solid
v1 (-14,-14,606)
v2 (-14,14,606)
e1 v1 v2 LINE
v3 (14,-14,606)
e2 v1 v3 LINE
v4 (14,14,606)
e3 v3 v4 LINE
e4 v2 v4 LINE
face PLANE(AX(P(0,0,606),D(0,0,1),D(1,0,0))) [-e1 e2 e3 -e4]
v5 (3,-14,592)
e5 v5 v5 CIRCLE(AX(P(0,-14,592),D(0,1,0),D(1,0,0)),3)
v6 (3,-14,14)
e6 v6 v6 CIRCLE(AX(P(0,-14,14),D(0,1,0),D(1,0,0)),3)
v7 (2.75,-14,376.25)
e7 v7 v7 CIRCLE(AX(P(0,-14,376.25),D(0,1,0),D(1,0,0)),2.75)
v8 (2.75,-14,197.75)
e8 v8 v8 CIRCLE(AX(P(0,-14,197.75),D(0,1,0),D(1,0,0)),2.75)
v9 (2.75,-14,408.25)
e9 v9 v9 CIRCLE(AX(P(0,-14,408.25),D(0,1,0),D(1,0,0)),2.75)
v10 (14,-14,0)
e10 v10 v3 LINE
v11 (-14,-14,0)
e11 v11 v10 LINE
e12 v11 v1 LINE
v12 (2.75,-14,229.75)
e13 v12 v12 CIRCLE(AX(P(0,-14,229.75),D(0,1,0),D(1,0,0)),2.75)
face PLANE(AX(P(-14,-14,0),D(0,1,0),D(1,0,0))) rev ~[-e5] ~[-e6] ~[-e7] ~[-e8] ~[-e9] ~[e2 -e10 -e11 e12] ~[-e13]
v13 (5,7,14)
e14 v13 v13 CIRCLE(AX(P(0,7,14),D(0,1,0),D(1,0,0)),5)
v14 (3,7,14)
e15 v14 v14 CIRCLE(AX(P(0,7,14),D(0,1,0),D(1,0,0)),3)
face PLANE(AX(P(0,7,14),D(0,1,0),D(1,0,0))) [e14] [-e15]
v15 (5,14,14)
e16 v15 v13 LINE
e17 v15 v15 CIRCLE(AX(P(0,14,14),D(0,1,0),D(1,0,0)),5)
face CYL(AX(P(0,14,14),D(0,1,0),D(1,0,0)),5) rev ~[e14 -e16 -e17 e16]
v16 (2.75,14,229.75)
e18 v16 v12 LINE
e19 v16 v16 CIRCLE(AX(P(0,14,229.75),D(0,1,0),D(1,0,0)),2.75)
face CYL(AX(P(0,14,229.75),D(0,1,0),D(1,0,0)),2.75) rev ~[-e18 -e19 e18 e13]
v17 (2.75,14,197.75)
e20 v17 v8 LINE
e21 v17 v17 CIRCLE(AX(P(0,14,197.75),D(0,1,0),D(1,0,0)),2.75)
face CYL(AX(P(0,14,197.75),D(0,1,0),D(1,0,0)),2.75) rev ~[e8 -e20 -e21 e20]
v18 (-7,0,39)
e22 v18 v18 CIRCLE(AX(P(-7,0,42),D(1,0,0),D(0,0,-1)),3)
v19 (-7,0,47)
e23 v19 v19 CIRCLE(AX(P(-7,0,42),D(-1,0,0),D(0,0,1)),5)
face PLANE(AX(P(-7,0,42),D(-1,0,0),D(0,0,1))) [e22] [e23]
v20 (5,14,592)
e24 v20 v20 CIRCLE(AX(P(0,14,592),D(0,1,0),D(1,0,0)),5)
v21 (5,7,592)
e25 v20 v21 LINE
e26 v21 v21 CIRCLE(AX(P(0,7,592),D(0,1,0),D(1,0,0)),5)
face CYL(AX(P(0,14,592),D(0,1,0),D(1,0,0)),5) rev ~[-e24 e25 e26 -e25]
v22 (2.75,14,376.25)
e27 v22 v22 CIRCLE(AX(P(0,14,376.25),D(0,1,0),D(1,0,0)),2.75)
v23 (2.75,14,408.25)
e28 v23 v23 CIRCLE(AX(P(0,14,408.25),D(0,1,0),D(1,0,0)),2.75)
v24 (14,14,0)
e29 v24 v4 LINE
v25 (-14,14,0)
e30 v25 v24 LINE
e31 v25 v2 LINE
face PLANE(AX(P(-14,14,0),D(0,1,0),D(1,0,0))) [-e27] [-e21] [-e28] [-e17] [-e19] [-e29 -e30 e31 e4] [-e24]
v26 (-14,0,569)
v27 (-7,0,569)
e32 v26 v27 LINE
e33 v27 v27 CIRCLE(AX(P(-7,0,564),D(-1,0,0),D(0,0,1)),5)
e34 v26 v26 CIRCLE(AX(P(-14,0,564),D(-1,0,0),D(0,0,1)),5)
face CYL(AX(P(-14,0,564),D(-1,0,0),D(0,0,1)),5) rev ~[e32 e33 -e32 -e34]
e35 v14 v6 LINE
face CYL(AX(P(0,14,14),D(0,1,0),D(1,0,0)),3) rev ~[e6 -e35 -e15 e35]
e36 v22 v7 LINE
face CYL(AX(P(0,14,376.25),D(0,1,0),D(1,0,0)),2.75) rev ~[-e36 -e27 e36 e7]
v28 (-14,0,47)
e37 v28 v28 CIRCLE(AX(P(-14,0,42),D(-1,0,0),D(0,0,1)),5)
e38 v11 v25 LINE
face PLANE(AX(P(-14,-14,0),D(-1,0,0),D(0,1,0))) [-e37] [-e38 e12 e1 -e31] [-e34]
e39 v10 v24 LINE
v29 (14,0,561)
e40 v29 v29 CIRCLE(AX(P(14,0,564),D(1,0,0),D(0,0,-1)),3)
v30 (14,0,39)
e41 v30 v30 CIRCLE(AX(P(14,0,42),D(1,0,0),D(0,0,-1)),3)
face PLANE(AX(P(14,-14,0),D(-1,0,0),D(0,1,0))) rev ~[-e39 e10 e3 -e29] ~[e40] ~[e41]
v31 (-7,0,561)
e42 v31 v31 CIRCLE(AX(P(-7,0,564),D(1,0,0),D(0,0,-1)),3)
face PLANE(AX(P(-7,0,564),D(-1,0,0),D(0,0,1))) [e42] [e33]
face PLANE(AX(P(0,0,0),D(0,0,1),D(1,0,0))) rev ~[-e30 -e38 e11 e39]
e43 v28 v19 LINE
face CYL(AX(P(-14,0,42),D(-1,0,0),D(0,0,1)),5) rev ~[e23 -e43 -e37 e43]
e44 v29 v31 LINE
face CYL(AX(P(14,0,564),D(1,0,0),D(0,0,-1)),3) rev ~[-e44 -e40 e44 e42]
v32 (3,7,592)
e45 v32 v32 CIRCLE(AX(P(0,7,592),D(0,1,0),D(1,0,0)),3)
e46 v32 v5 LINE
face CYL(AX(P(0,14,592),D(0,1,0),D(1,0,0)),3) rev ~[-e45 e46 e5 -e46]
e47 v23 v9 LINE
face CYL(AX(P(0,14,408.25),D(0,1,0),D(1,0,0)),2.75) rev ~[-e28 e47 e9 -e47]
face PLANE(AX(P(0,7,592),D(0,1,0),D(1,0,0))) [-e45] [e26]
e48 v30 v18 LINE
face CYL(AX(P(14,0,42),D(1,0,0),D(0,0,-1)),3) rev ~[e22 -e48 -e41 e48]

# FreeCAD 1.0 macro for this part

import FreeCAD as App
import Part
import Sketcher
from FreeCAD import Vector

doc = App.newDocument("Part")
body = doc.addObject("PartDesign::Body", "Body")

# Sketch on XY plane
sketch1 = body.newObject("Sketcher::SketchObject", "Sketch")
sketch1.AttachmentSupport = (doc.getObject("XY_Plane"), [""])
sketch1.MapMode = "FlatFace"
sketch1.addGeometry([
    Part.LineSegment(Vector(-14, 14, 0), Vector(-14, -14, 0)),
    Part.LineSegment(Vector(-14, -14, 0), Vector(14, -14, 0)),
    Part.LineSegment(Vector(14, -14, 0), Vector(14, 14, 0)),
    Part.LineSegment(Vector(14, 14, 0), Vector(-14, 14, 0)),
], False)
sketch1.addConstraint([
    Sketcher.Constraint("Coincident", 0, 2, 1, 1),
    Sketcher.Constraint("Coincident", 1, 2, 2, 1),
    Sketcher.Constraint("Coincident", 2, 2, 3, 1),
    Sketcher.Constraint("Coincident", 3, 2, 0, 1),
    Sketcher.Constraint("Vertical", 0),
    Sketcher.Constraint("Horizontal", 1),
    Sketcher.Constraint("Vertical", 2),
    Sketcher.Constraint("Horizontal", 3),
    Sketcher.Constraint("Symmetric", 0, 2, 2, 2, -1, 1),
    Sketcher.Constraint("Equal", 3, 0),
    Sketcher.Constraint("DistanceX", 1, 1, 1, 2, 28.0),
])
pad1 = body.newObject("PartDesign::Pad", "Pad")
pad1.Profile = sketch1
pad1.Length = 606

# Sketch on YZ plane
sketch2 = body.newObject("Sketcher::SketchObject", "Sketch001")
sketch2.AttachmentSupport = (doc.getObject("YZ_Plane"), [""])
sketch2.MapMode = "FlatFace"
sketch2.AttachmentOffset = App.Placement(Vector(0, 0, 14), App.Rotation())
sketch2.addGeometry([
    Part.Circle(Vector(0, 42, 0), Vector(0, 0, 1), 3),
    Part.Circle(Vector(0, 564, 0), Vector(0, 0, 1), 3),
], False)
sketch2.addConstraint([
    Sketcher.Constraint("Equal", 0, 1),
    Sketcher.Constraint("PointOnObject", 0, 3, -2),
    Sketcher.Constraint("PointOnObject", 1, 3, -2),
    Sketcher.Constraint("Diameter", 0, 6.0),
    Sketcher.Constraint("DistanceY", -1, 1, 0, 3, 42.0),
    Sketcher.Constraint("DistanceY", -1, 1, 1, 3, 564.0),
])
pocket1 = body.newObject("PartDesign::Pocket", "Pocket")
pocket1.Profile = sketch2
pocket1.Length = 40

# Sketch on YZ plane
sketch3 = body.newObject("Sketcher::SketchObject", "Sketch002")
sketch3.AttachmentSupport = (doc.getObject("YZ_Plane"), [""])
sketch3.MapMode = "FlatFace"
sketch3.AttachmentOffset = App.Placement(Vector(0, 0, -14), App.Rotation())
sketch3.addGeometry([
    Part.Circle(Vector(0, 42, 0), Vector(0, 0, 1), 5),
    Part.Circle(Vector(0, 564, 0), Vector(0, 0, 1), 5),
], False)
sketch3.addConstraint([
    Sketcher.Constraint("Equal", 0, 1),
    Sketcher.Constraint("PointOnObject", 0, 3, -2),
    Sketcher.Constraint("PointOnObject", 1, 3, -2),
    Sketcher.Constraint("Diameter", 0, 10.0),
    Sketcher.Constraint("DistanceY", -1, 1, 0, 3, 42.0),
    Sketcher.Constraint("DistanceY", -1, 1, 1, 3, 564.0),
])
pocket2 = body.newObject("PartDesign::Pocket", "Pocket001")
pocket2.Profile = sketch3
pocket2.Length = 7
pocket2.Reversed = True

# Sketch on XZ plane
sketch4 = body.newObject("Sketcher::SketchObject", "Sketch003")
sketch4.AttachmentSupport = (doc.getObject("XZ_Plane"), [""])
sketch4.MapMode = "FlatFace"
sketch4.AttachmentOffset = App.Placement(Vector(0, 0, -14), App.Rotation())
sketch4.addGeometry([
    Part.Circle(Vector(0, 592, 0), Vector(0, 0, 1), 3),
    Part.Circle(Vector(0, 14, 0), Vector(0, 0, 1), 3),
], False)
sketch4.addConstraint([
    Sketcher.Constraint("Equal", 0, 1),
    Sketcher.Constraint("PointOnObject", 0, 3, -2),
    Sketcher.Constraint("PointOnObject", 1, 3, -2),
    Sketcher.Constraint("Diameter", 0, 6.0),
    Sketcher.Constraint("DistanceY", -1, 1, 0, 3, 592.0),
    Sketcher.Constraint("DistanceY", -1, 1, 1, 3, 14.0),
])
pocket3 = body.newObject("PartDesign::Pocket", "Pocket002")
pocket3.Profile = sketch4
pocket3.Type = "ThroughAll"
pocket3.Midplane = True

# Sketch on XZ plane
sketch5 = body.newObject("Sketcher::SketchObject", "Sketch004")
sketch5.AttachmentSupport = (doc.getObject("XZ_Plane"), [""])
sketch5.MapMode = "FlatFace"
sketch5.AttachmentOffset = App.Placement(Vector(0, 0, -14), App.Rotation())
sketch5.addGeometry([
    Part.Circle(Vector(0, 14, 0), Vector(0, 0, 1), 5),
    Part.Circle(Vector(0, 592, 0), Vector(0, 0, 1), 5),
], False)
sketch5.addConstraint([
    Sketcher.Constraint("Equal", 0, 1),
    Sketcher.Constraint("PointOnObject", 0, 3, -2),
    Sketcher.Constraint("PointOnObject", 1, 3, -2),
    Sketcher.Constraint("Diameter", 0, 10.0),
    Sketcher.Constraint("DistanceY", -1, 1, 0, 3, 14.0),
    Sketcher.Constraint("DistanceY", -1, 1, 1, 3, 592.0),
])
pocket4 = body.newObject("PartDesign::Pocket", "Pocket003")
pocket4.Profile = sketch5
pocket4.Length = 7
pocket4.Reversed = True

# Sketch on XZ plane
sketch6 = body.newObject("Sketcher::SketchObject", "Sketch005")
sketch6.AttachmentSupport = (doc.getObject("XZ_Plane"), [""])
sketch6.MapMode = "FlatFace"
sketch6.AttachmentOffset = App.Placement(Vector(0, 0, -14), App.Rotation())
sketch6.addGeometry([
    Part.Circle(Vector(0, 408.2, 0), Vector(0, 0, 1), 2.8),
    Part.Circle(Vector(0, 376.2, 0), Vector(0, 0, 1), 2.8),
    Part.Circle(Vector(0, 229.8, 0), Vector(0, 0, 1), 2.8),
    Part.Circle(Vector(0, 197.8, 0), Vector(0, 0, 1), 2.8),
], False)
sketch6.addConstraint([
    Sketcher.Constraint("Equal", 0, 1),
    Sketcher.Constraint("Equal", 1, 2),
    Sketcher.Constraint("Equal", 2, 3),
    Sketcher.Constraint("PointOnObject", 0, 3, -2),
    Sketcher.Constraint("PointOnObject", 1, 3, -2),
    Sketcher.Constraint("PointOnObject", 2, 3, -2),
    Sketcher.Constraint("PointOnObject", 3, 3, -2),
    Sketcher.Constraint("Diameter", 0, 5.5),
    Sketcher.Constraint("DistanceY", 1, 3, 0, 3, 32.0),
    Sketcher.Constraint("DistanceY", 3, 3, 2, 3, 32.0),
    Sketcher.Constraint("DistanceY", 2, 3, 1, 3, 146.5),
    Sketcher.Constraint("DistanceY", -1, 1, 0, 3, 408.25),
])
pocket5 = body.newObject("PartDesign::Pocket", "Pocket004")
pocket5.Profile = sketch6
pocket5.Type = "ThroughAll"
pocket5.Reversed = True

doc.recompute()
